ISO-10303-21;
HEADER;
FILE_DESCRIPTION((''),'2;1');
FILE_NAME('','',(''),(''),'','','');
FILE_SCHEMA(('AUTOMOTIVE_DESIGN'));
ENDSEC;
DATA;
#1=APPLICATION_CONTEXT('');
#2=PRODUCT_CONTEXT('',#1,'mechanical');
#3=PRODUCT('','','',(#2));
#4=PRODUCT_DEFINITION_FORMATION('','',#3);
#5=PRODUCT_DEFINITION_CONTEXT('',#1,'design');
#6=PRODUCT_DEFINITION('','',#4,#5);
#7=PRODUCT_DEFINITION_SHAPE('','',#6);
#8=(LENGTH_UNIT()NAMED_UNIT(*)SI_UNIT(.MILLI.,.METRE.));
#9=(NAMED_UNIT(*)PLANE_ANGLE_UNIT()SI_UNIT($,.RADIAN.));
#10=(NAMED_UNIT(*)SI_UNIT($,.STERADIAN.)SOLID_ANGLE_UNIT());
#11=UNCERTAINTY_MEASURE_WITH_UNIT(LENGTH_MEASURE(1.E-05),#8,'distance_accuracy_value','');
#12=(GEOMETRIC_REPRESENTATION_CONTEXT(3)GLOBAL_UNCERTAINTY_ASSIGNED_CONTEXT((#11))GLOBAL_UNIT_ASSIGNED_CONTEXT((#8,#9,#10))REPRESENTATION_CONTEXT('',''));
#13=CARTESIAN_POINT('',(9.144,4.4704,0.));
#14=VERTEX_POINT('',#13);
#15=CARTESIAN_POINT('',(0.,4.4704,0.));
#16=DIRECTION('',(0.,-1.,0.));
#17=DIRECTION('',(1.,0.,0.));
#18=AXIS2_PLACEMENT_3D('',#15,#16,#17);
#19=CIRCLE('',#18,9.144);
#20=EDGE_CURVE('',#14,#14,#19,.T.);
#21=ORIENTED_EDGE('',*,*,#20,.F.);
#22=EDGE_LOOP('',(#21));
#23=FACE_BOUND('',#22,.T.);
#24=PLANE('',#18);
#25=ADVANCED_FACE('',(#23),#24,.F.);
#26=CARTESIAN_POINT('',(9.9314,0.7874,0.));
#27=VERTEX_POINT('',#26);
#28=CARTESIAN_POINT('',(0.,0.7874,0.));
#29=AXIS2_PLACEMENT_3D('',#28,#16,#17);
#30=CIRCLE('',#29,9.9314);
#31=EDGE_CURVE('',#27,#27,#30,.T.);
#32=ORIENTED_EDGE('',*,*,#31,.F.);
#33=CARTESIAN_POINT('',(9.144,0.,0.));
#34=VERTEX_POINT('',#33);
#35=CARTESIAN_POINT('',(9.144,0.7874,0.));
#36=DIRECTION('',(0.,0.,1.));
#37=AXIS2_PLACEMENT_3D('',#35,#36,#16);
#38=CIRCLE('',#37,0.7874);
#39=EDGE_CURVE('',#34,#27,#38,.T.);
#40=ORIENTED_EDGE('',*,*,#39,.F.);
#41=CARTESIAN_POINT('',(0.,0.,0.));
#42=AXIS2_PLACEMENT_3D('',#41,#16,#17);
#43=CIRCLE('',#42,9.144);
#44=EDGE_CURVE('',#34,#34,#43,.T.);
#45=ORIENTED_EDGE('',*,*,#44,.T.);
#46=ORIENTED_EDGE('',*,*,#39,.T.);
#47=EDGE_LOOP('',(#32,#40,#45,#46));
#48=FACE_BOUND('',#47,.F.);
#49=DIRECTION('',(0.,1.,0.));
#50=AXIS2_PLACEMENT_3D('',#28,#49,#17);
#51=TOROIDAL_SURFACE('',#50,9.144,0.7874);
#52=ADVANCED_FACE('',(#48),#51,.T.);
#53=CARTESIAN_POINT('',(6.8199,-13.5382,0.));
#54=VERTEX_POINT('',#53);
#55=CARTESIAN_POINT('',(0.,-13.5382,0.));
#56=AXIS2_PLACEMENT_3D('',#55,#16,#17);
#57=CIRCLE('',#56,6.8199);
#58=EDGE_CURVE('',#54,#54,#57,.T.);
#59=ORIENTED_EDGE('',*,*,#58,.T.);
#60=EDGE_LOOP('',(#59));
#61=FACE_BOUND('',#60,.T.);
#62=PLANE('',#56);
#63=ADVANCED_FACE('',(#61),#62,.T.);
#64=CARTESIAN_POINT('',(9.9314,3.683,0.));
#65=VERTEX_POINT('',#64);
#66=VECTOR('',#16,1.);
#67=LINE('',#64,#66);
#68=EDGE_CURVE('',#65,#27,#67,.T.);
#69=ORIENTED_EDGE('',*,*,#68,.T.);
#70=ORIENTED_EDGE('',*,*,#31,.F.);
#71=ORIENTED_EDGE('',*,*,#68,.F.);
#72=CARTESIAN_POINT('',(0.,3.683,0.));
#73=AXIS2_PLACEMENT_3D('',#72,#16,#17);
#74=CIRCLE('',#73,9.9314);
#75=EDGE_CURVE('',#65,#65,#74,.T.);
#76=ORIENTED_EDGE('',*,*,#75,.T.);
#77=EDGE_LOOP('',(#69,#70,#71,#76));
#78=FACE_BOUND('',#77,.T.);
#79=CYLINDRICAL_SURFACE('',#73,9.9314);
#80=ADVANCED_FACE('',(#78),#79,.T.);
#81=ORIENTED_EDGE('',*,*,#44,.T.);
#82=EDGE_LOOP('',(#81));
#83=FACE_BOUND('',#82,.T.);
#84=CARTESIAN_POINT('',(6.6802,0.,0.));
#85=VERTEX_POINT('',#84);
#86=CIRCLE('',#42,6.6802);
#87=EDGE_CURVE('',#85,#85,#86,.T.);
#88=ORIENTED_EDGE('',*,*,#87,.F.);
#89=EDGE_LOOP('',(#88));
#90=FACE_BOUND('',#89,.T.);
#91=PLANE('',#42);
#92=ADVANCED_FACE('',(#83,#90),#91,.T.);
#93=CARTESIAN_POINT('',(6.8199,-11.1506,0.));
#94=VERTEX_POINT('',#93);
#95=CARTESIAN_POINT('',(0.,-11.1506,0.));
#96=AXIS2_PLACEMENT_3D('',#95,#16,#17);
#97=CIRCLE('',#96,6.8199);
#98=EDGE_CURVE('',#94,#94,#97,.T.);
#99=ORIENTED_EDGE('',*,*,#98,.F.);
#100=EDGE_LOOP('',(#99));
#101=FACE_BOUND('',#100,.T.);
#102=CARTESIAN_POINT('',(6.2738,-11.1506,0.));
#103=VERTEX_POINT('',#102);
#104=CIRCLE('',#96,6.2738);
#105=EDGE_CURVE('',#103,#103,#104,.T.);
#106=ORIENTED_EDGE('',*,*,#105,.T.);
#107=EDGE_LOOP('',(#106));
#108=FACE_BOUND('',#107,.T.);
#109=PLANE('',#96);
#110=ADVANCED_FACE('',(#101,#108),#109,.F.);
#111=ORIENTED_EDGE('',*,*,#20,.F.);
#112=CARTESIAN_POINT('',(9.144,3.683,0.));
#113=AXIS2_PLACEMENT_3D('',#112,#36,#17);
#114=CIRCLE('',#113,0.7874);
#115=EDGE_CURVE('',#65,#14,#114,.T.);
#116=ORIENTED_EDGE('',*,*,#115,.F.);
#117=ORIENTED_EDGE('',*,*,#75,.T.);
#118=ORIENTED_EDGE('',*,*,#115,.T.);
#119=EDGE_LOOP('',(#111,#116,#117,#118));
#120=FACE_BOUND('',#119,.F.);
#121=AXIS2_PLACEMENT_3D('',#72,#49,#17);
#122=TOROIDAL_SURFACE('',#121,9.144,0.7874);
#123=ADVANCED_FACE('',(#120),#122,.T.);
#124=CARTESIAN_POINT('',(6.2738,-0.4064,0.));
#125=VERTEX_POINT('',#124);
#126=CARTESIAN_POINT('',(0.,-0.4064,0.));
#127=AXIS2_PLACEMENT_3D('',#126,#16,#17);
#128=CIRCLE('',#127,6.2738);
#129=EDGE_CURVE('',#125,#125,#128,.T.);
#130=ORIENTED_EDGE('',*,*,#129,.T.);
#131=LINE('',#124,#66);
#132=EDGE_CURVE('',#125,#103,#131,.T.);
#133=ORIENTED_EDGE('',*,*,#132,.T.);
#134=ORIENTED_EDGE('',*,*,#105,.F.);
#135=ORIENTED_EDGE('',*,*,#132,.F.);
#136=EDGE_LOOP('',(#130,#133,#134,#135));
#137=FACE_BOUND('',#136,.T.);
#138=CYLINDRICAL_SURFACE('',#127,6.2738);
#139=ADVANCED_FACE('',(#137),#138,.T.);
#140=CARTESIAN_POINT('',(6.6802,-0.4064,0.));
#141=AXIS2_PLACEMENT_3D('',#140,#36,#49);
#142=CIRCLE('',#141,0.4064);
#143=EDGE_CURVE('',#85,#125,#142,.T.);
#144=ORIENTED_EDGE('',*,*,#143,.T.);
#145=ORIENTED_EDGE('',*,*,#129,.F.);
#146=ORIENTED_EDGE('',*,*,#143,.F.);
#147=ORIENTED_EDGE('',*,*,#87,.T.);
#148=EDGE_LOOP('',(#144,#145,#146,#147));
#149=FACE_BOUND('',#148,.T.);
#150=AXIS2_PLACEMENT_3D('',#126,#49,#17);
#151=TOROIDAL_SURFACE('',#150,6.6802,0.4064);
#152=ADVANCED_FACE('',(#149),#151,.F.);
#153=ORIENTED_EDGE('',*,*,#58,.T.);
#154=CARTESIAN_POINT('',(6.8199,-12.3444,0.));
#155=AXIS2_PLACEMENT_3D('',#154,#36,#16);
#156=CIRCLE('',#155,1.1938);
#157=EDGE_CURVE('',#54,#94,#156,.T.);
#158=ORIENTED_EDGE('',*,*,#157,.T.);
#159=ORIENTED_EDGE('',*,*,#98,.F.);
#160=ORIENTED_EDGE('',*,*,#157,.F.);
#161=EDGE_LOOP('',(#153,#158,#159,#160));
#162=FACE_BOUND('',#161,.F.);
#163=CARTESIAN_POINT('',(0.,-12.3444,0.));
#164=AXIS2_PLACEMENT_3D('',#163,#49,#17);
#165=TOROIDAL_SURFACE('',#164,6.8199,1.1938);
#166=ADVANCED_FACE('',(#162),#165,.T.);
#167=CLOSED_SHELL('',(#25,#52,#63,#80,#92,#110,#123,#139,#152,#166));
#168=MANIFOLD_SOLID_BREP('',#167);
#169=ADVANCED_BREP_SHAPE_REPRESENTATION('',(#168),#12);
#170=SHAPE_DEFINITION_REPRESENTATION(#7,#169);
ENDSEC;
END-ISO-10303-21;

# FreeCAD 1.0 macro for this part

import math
import FreeCAD as App
import Part
import Sketcher
from FreeCAD import Vector
Q = App.Units.Quantity

doc = App.newDocument("Part")
body = doc.addObject("PartDesign::Body", "Body")

# Sketch on XY plane
sketch1 = body.newObject("Sketcher::SketchObject", "Sketch")
sketch1.AttachmentSupport = (doc.getObject("XY_Plane"), [""])
sketch1.MapMode = "FlatFace"
sketch1.addGeometry([
    Part.LineSegment(Vector(0, 4.4704, 0), Vector(0, -13.5382, 0)),  # 0
    Part.LineSegment(Vector(0, -13.5382, 0), Vector(6.8199, -13.5382, 0)),  # 1
    Part.ArcOfCircle(Part.Circle(Vector(6.8199, -12.3444, 0), Vector(0, 0, 1), 1.1938), math.radians(-90), math.radians(90)),  # 2
    Part.LineSegment(Vector(6.8199, -11.1506, 0), Vector(6.2738, -11.1506, 0)),  # 3
    Part.LineSegment(Vector(6.2738, -11.1506, 0), Vector(6.2738, -0.4064, 0)),  # 4
    Part.ArcOfCircle(Part.Circle(Vector(6.6802, -0.4064, 0), Vector(0, 0, 1), 0.4064), math.radians(90), math.radians(180)),  # 5
    Part.LineSegment(Vector(6.6802, 0, 0), Vector(9.144, 0, 0)),  # 6
    Part.ArcOfCircle(Part.Circle(Vector(9.144, 0.7874, 0), Vector(0, 0, 1), 0.7874), math.radians(-90), math.radians(0)),  # 7
    Part.LineSegment(Vector(9.9314, 0.7874, 0), Vector(9.9314, 3.683, 0)),  # 8
    Part.ArcOfCircle(Part.Circle(Vector(9.144, 3.683, 0), Vector(0, 0, 1), 0.7874), math.radians(0), math.radians(90)),  # 9
    Part.LineSegment(Vector(9.144, 4.4704, 0), Vector(0, 4.4704, 0)),  # 10
], False)
sketch1.addConstraint([
    Sketcher.Constraint("Coincident", 0, 2, 1, 1),
    Sketcher.Constraint("Tangent", 1, 2, 2, 1),
    Sketcher.Constraint("Tangent", 2, 2, 3, 1),
    Sketcher.Constraint("Coincident", 3, 2, 4, 1),
    Sketcher.Constraint("Tangent", 4, 2, 5, 2),
    Sketcher.Constraint("Tangent", 5, 1, 6, 1),
    Sketcher.Constraint("Tangent", 6, 2, 7, 1),
    Sketcher.Constraint("Tangent", 7, 2, 8, 1),
    Sketcher.Constraint("Tangent", 8, 2, 9, 1),
    Sketcher.Constraint("Tangent", 9, 2, 10, 1),
    Sketcher.Constraint("Coincident", 10, 2, 0, 1),
    Sketcher.Constraint("Vertical", 0),
    Sketcher.Constraint("Horizontal", 1),
    Sketcher.Constraint("Horizontal", 3),
    Sketcher.Constraint("Vertical", 4),
    Sketcher.Constraint("Horizontal", 6),
    Sketcher.Constraint("Vertical", 8),
    Sketcher.Constraint("Horizontal", 10),
    Sketcher.Constraint("Equal", 7, 9),
    Sketcher.Constraint("PointOnObject", 0, 2, -2),
    Sketcher.Constraint("PointOnObject", 5, 1, -1),
    Sketcher.Constraint("Radius", 2, Q("0.047 in")),
    Sketcher.Constraint("Radius", 5, Q("0.016 in")),
    Sketcher.Constraint("Radius", 7, Q("0.031 in")),
    Sketcher.Constraint("DistanceX", 10, 2, 10, 1, Q("0.36 in")),
    Sketcher.Constraint("DistanceX", 6, 1, 6, 2, Q("0.097 in")),
    Sketcher.Constraint("DistanceY", 0, 2, 0, 1, Q("0.709 in")),
    Sketcher.Constraint("DistanceY", 4, 1, 4, 2, Q("0.423 in")),
    Sketcher.Constraint("DistanceX", 1, 1, 1, 2, Q("0.2685 in")),
])
revolution = body.newObject("PartDesign::Revolution", "Revolution")
revolution.Profile = sketch1
revolution.ReferenceAxis = (sketch1, ["V_Axis"])
revolution.Angle = 360

doc.recompute()
